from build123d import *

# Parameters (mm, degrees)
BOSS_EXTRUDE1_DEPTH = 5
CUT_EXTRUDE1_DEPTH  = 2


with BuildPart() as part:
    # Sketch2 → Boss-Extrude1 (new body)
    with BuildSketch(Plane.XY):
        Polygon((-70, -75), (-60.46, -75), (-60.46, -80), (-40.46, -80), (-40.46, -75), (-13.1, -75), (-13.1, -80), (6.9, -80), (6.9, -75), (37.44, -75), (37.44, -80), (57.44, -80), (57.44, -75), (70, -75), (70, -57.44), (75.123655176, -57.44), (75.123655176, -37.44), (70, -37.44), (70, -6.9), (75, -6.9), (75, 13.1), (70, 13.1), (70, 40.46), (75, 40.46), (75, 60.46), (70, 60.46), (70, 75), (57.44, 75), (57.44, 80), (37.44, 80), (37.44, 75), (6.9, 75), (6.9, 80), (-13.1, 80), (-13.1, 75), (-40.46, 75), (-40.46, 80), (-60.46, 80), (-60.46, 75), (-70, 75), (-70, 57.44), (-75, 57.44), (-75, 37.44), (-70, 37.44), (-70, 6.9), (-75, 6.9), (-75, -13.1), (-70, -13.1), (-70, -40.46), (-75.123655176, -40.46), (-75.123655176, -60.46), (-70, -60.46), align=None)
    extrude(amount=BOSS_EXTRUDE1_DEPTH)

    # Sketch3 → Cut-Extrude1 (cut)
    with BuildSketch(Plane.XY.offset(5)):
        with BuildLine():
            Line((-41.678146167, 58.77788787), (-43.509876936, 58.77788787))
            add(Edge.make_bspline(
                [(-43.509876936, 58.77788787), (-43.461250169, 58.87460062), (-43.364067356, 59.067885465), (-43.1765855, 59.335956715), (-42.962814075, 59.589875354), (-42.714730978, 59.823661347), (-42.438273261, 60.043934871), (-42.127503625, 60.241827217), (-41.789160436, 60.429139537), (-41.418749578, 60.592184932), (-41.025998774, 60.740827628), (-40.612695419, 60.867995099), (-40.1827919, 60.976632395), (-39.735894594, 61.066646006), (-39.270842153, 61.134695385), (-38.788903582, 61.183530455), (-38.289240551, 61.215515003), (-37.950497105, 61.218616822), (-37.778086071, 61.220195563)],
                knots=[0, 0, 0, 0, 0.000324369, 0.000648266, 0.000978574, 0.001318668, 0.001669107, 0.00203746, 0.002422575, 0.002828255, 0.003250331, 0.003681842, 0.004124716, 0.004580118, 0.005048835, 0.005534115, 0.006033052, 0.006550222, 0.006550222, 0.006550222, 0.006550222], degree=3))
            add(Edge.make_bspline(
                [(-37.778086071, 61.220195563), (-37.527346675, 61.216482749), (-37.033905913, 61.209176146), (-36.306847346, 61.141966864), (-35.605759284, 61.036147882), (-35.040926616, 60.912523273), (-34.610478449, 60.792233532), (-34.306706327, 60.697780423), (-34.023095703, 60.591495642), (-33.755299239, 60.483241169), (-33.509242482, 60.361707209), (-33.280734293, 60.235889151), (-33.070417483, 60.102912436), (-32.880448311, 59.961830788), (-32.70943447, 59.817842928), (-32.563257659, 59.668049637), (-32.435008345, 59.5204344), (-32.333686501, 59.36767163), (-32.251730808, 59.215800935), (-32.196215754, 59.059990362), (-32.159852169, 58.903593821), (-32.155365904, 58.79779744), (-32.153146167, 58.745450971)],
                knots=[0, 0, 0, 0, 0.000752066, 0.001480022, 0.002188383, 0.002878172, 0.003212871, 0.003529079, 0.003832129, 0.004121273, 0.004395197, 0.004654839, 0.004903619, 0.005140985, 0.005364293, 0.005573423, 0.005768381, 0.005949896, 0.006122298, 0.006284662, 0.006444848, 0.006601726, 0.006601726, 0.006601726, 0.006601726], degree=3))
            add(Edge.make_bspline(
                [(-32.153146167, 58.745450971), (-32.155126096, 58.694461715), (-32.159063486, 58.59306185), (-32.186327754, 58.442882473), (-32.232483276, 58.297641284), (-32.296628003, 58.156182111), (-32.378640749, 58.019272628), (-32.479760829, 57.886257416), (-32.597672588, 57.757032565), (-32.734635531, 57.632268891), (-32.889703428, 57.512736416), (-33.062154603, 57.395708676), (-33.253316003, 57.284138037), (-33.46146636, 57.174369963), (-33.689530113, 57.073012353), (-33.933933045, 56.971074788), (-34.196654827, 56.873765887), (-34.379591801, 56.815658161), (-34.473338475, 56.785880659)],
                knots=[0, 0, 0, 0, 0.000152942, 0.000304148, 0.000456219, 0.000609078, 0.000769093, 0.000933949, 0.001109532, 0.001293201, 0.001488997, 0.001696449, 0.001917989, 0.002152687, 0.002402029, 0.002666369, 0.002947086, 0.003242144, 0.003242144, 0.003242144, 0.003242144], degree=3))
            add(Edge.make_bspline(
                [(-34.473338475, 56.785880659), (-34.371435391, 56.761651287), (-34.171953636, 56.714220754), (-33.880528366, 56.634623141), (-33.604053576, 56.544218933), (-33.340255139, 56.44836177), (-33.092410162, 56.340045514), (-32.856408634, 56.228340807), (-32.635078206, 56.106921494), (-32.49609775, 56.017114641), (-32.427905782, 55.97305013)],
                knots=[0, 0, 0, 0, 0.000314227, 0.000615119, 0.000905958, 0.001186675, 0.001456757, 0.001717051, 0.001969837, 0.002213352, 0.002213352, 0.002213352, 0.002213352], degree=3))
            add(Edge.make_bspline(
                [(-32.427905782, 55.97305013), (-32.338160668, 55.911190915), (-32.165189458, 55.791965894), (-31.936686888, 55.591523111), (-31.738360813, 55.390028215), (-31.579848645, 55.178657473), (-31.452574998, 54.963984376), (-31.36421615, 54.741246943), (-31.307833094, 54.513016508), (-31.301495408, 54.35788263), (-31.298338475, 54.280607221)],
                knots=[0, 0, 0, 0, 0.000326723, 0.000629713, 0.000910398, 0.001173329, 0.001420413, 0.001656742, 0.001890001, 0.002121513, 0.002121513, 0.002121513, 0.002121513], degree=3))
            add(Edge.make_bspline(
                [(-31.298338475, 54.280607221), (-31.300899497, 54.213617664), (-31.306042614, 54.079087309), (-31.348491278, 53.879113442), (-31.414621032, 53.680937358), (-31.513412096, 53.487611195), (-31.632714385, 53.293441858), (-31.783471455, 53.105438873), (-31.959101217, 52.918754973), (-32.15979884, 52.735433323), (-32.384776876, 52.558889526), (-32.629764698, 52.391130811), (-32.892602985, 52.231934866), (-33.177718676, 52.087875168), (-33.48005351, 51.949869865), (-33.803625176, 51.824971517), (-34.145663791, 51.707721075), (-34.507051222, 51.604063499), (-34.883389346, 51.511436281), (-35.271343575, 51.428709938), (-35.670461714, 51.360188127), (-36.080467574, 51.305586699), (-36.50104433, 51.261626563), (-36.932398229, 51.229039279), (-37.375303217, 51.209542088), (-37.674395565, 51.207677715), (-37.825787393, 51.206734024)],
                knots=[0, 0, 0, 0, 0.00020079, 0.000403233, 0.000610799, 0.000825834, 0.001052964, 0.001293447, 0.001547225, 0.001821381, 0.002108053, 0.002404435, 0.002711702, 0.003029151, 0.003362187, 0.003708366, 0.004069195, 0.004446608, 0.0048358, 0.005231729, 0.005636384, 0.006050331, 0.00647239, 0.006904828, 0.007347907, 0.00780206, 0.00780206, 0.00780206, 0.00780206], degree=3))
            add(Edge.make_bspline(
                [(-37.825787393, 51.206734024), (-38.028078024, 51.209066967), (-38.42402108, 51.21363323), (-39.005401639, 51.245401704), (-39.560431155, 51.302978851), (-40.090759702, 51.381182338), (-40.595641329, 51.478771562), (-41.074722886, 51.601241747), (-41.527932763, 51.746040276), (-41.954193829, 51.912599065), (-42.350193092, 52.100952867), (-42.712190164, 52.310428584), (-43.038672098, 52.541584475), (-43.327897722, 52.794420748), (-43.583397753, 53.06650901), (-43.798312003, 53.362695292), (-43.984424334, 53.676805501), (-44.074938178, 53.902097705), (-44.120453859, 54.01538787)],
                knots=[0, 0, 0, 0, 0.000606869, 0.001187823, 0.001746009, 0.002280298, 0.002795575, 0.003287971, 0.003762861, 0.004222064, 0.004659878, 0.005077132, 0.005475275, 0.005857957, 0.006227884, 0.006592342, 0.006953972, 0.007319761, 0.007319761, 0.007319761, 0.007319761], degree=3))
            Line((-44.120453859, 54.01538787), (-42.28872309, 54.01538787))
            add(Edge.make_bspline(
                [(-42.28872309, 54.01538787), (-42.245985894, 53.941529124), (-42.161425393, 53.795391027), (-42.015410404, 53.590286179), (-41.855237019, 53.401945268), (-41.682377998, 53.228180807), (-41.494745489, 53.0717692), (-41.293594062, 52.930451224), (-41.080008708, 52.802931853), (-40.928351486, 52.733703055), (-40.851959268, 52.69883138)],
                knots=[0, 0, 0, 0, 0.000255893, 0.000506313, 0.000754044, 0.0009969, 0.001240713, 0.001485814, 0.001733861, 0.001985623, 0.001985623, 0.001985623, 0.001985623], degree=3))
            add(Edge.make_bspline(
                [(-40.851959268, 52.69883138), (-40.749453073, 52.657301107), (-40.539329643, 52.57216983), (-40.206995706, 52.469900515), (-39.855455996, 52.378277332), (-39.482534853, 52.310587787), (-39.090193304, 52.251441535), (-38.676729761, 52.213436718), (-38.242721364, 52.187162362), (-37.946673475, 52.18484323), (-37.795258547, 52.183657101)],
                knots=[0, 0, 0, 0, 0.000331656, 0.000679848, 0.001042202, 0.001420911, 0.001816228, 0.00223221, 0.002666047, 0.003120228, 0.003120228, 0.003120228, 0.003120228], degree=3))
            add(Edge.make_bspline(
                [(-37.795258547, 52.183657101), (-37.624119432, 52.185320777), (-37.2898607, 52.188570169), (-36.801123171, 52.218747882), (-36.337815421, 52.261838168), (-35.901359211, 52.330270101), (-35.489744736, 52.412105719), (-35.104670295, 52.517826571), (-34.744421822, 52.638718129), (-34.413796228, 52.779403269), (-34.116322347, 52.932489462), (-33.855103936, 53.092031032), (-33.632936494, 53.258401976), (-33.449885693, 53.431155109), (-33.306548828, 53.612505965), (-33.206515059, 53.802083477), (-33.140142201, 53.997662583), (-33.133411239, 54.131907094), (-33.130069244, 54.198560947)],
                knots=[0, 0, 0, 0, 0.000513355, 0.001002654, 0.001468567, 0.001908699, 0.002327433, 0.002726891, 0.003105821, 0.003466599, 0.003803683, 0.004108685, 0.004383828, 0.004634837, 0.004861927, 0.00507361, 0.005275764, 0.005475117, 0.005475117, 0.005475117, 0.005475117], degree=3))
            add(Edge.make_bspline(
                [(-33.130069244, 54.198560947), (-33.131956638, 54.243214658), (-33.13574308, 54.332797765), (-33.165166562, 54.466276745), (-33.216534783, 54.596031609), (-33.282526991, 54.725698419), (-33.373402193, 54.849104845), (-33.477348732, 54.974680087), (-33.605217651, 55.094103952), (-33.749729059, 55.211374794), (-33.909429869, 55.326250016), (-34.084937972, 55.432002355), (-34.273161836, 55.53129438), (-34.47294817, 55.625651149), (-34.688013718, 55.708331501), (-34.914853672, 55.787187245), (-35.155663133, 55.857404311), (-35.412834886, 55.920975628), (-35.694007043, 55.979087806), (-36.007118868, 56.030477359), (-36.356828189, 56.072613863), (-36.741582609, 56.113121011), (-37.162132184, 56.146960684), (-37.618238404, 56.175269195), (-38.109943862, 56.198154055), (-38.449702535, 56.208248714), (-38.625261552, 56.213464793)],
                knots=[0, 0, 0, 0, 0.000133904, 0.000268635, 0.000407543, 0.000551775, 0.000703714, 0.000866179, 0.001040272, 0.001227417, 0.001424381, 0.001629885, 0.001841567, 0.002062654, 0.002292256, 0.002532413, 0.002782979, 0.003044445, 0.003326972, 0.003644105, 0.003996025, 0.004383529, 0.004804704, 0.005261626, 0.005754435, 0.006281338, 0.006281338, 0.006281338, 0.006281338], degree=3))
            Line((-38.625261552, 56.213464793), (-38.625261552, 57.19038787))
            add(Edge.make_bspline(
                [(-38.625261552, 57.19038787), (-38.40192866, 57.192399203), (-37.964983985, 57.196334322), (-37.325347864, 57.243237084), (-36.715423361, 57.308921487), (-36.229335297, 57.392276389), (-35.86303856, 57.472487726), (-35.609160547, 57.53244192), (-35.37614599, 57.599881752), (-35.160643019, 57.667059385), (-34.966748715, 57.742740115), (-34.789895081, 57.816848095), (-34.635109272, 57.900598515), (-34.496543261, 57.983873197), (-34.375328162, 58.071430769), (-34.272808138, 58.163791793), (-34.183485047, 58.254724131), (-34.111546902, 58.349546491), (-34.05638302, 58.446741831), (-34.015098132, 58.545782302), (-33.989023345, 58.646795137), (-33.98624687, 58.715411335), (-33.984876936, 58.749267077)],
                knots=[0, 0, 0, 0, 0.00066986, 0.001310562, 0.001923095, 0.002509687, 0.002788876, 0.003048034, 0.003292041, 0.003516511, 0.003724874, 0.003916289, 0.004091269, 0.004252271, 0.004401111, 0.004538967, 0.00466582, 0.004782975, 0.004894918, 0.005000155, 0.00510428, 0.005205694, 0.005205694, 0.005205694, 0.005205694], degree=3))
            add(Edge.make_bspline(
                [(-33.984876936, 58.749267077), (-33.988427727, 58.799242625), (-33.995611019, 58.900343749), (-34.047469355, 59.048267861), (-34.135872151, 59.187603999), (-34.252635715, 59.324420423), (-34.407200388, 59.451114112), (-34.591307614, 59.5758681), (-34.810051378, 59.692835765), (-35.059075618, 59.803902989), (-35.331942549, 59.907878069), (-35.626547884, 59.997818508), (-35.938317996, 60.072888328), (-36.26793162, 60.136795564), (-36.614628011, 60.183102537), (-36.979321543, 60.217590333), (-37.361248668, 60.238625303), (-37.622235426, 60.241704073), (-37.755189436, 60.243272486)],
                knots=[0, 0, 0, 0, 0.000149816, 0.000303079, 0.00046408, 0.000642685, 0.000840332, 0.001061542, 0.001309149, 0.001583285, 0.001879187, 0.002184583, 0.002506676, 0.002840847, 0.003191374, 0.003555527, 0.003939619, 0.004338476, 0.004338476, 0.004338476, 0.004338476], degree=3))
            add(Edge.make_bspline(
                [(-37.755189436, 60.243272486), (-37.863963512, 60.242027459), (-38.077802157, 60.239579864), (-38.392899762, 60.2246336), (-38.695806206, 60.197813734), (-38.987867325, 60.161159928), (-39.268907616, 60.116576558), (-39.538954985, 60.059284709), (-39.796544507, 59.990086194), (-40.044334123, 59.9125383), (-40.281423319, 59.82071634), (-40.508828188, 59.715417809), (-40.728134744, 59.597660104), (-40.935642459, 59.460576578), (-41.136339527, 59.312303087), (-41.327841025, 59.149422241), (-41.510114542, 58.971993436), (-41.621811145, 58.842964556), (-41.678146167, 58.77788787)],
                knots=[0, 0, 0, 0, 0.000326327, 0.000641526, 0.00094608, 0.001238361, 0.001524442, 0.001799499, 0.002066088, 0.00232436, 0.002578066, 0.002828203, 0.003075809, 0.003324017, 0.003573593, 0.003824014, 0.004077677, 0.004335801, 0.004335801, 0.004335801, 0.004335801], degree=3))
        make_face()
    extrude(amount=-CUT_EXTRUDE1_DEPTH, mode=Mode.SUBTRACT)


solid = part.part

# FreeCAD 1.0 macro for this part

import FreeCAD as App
import Part
import Sketcher

V = App.Vector

doc = App.newDocument("Part")
body = doc.addObject("PartDesign::Body", "Body")

sketch1 = body.newObject("Sketcher::SketchObject", "Sketch")
sketch1.AttachmentSupport = (doc.getObject("XY_Plane"), [""])
sketch1.MapMode = "FlatFace"
sketch1.addGeometry([
    Part.LineSegment(V(-70, -75, 0), V(-60, -75, 0)),
    Part.LineSegment(V(-60, -75, 0), V(-60, -80, 0)),
    Part.LineSegment(V(-60, -80, 0), V(-40, -80, 0)),
    Part.LineSegment(V(-40, -80, 0), V(-40, -75, 0)),
    Part.LineSegment(V(-40, -75, 0), V(-13, -75, 0)),
    Part.LineSegment(V(-13, -75, 0), V(-13, -80, 0)),
    Part.LineSegment(V(-13, -80, 0), V(7, -80, 0)),
    Part.LineSegment(V(7, -80, 0), V(7, -75, 0)),
    Part.LineSegment(V(7, -75, 0), V(37, -75, 0)),
    Part.LineSegment(V(37, -75, 0), V(37, -80, 0)),
    Part.LineSegment(V(37, -80, 0), V(57, -80, 0)),
    Part.LineSegment(V(57, -80, 0), V(57, -75, 0)),
    Part.LineSegment(V(57, -75, 0), V(70, -75, 0)),
    Part.LineSegment(V(70, -75, 0), V(70, -57, 0)),
    Part.LineSegment(V(70, -57, 0), V(75, -57, 0)),
    Part.LineSegment(V(75, -57, 0), V(75, -37, 0)),
    Part.LineSegment(V(75, -37, 0), V(70, -37, 0)),
    Part.LineSegment(V(70, -37, 0), V(70, -7, 0)),
    Part.LineSegment(V(70, -7, 0), V(75, -7, 0)),
    Part.LineSegment(V(75, -7, 0), V(75, 13, 0)),
    Part.LineSegment(V(75, 13, 0), V(70, 13, 0)),
    Part.LineSegment(V(70, 13, 0), V(70, 40, 0)),
    Part.LineSegment(V(70, 40, 0), V(75, 40, 0)),
    Part.LineSegment(V(75, 40, 0), V(75, 60, 0)),
    Part.LineSegment(V(75, 60, 0), V(70, 60, 0)),
    Part.LineSegment(V(70, 60, 0), V(70, 75, 0)),
    Part.LineSegment(V(70, 75, 0), V(57, 75, 0)),
    Part.LineSegment(V(57, 75, 0), V(57, 80, 0)),
    Part.LineSegment(V(57, 80, 0), V(37, 80, 0)),
    Part.LineSegment(V(37, 80, 0), V(37, 75, 0)),
    Part.LineSegment(V(37, 75, 0), V(7, 75, 0)),
    Part.LineSegment(V(7, 75, 0), V(7, 80, 0)),
    Part.LineSegment(V(7, 80, 0), V(-13, 80, 0)),
    Part.LineSegment(V(-13, 80, 0), V(-13, 75, 0)),
    Part.LineSegment(V(-13, 75, 0), V(-40, 75, 0)),
    Part.LineSegment(V(-40, 75, 0), V(-40, 80, 0)),
    Part.LineSegment(V(-40, 80, 0), V(-60, 80, 0)),
    Part.LineSegment(V(-60, 80, 0), V(-60, 75, 0)),
    Part.LineSegment(V(-60, 75, 0), V(-70, 75, 0)),
    Part.LineSegment(V(-70, 75, 0), V(-70, 57, 0)),
    Part.LineSegment(V(-70, 57, 0), V(-75, 57, 0)),
    Part.LineSegment(V(-75, 57, 0), V(-75, 37, 0)),
    Part.LineSegment(V(-75, 37, 0), V(-70, 37, 0)),
    Part.LineSegment(V(-70, 37, 0), V(-70, 7, 0)),
    Part.LineSegment(V(-70, 7, 0), V(-75, 7, 0)),
    Part.LineSegment(V(-75, 7, 0), V(-75, -13, 0)),
    Part.LineSegment(V(-75, -13, 0), V(-70, -13, 0)),
    Part.LineSegment(V(-70, -13, 0), V(-70, -40, 0)),
    Part.LineSegment(V(-70, -40, 0), V(-75, -40, 0)),
    Part.LineSegment(V(-75, -40, 0), V(-75, -60, 0)),
    Part.LineSegment(V(-75, -60, 0), V(-70, -60, 0)),
    Part.LineSegment(V(-70, -60, 0), V(-70, -75, 0)),
], False)
sketch1.addConstraint([
    Sketcher.Constraint("Coincident", 0, 2, 1, 1),
    Sketcher.Constraint("Coincident", 1, 2, 2, 1),
    Sketcher.Constraint("Coincident", 2, 2, 3, 1),
    Sketcher.Constraint("Coincident", 3, 2, 4, 1),
    Sketcher.Constraint("Coincident", 4, 2, 5, 1),
    Sketcher.Constraint("Coincident", 5, 2, 6, 1),
    Sketcher.Constraint("Coincident", 6, 2, 7, 1),
    Sketcher.Constraint("Coincident", 7, 2, 8, 1),
    Sketcher.Constraint("Coincident", 8, 2, 9, 1),
    Sketcher.Constraint("Coincident", 9, 2, 10, 1),
    Sketcher.Constraint("Coincident", 10, 2, 11, 1),
    Sketcher.Constraint("Coincident", 11, 2, 12, 1),
    Sketcher.Constraint("Coincident", 12, 2, 13, 1),
    Sketcher.Constraint("Coincident", 13, 2, 14, 1),
    Sketcher.Constraint("Coincident", 14, 2, 15, 1),
    Sketcher.Constraint("Coincident", 15, 2, 16, 1),
    Sketcher.Constraint("Coincident", 16, 2, 17, 1),
    Sketcher.Constraint("Coincident", 17, 2, 18, 1),
    Sketcher.Constraint("Coincident", 18, 2, 19, 1),
    Sketcher.Constraint("Coincident", 19, 2, 20, 1),
    Sketcher.Constraint("Coincident", 20, 2, 21, 1),
    Sketcher.Constraint("Coincident", 21, 2, 22, 1),
    Sketcher.Constraint("Coincident", 22, 2, 23, 1),
    Sketcher.Constraint("Coincident", 23, 2, 24, 1),
    Sketcher.Constraint("Coincident", 24, 2, 25, 1),
    Sketcher.Constraint("Coincident", 25, 2, 26, 1),
    Sketcher.Constraint("Coincident", 26, 2, 27, 1),
    Sketcher.Constraint("Coincident", 27, 2, 28, 1),
    Sketcher.Constraint("Coincident", 28, 2, 29, 1),
    Sketcher.Constraint("Coincident", 29, 2, 30, 1),
    Sketcher.Constraint("Coincident", 30, 2, 31, 1),
    Sketcher.Constraint("Coincident", 31, 2, 32, 1),
    Sketcher.Constraint("Coincident", 32, 2, 33, 1),
    Sketcher.Constraint("Coincident", 33, 2, 34, 1),
    Sketcher.Constraint("Coincident", 34, 2, 35, 1),
    Sketcher.Constraint("Coincident", 35, 2, 36, 1),
    Sketcher.Constraint("Coincident", 36, 2, 37, 1),
    Sketcher.Constraint("Coincident", 37, 2, 38, 1),
    Sketcher.Constraint("Coincident", 38, 2, 39, 1),
    Sketcher.Constraint("Coincident", 39, 2, 40, 1),
    Sketcher.Constraint("Coincident", 40, 2, 41, 1),
    Sketcher.Constraint("Coincident", 41, 2, 42, 1),
    Sketcher.Constraint("Coincident", 42, 2, 43, 1),
    Sketcher.Constraint("Coincident", 43, 2, 44, 1),
    Sketcher.Constraint("Coincident", 44, 2, 45, 1),
    Sketcher.Constraint("Coincident", 45, 2, 46, 1),
    Sketcher.Constraint("Coincident", 46, 2, 47, 1),
    Sketcher.Constraint("Coincident", 47, 2, 48, 1),
    Sketcher.Constraint("Coincident", 48, 2, 49, 1),
    Sketcher.Constraint("Coincident", 49, 2, 50, 1),
    Sketcher.Constraint("Coincident", 50, 2, 51, 1),
    Sketcher.Constraint("Coincident", 51, 2, 0, 1),
    Sketcher.Constraint("Horizontal", 0),
    Sketcher.Constraint("Vertical", 1),
    Sketcher.Constraint("Horizontal", 2),
    Sketcher.Constraint("Vertical", 3),
    Sketcher.Constraint("Horizontal", 4),
    Sketcher.Constraint("Vertical", 5),
    Sketcher.Constraint("Horizontal", 6),
    Sketcher.Constraint("Vertical", 7),
    Sketcher.Constraint("Horizontal", 8),
    Sketcher.Constraint("Vertical", 9),
    Sketcher.Constraint("Horizontal", 10),
    Sketcher.Constraint("Vertical", 11),
    Sketcher.Constraint("Horizontal", 12),
    Sketcher.Constraint("Vertical", 13),
    Sketcher.Constraint("Horizontal", 14),
    Sketcher.Constraint("Vertical", 15),
    Sketcher.Constraint("Horizontal", 16),
    Sketcher.Constraint("Vertical", 17),
    Sketcher.Constraint("Horizontal", 18),
    Sketcher.Constraint("Vertical", 19),
    Sketcher.Constraint("Horizontal", 20),
    Sketcher.Constraint("Vertical", 21),
    Sketcher.Constraint("Horizontal", 22),
    Sketcher.Constraint("Vertical", 23),
    Sketcher.Constraint("Horizontal", 24),
    Sketcher.Constraint("Vertical", 25),
    Sketcher.Constraint("Horizontal", 26),
    Sketcher.Constraint("Vertical", 27),
    Sketcher.Constraint("Horizontal", 28),
    Sketcher.Constraint("Vertical", 29),
    Sketcher.Constraint("Horizontal", 30),
    Sketcher.Constraint("Vertical", 31),
    Sketcher.Constraint("Horizontal", 32),
    Sketcher.Constraint("Vertical", 33),
    Sketcher.Constraint("Horizontal", 34),
    Sketcher.Constraint("Vertical", 35),
    Sketcher.Constraint("Horizontal", 36),
    Sketcher.Constraint("Vertical", 37),
    Sketcher.Constraint("Horizontal", 38),
    Sketcher.Constraint("Vertical", 39),
    Sketcher.Constraint("Horizontal", 40),
    Sketcher.Constraint("Vertical", 41),
    Sketcher.Constraint("Horizontal", 42),
    Sketcher.Constraint("Vertical", 43),
    Sketcher.Constraint("Horizontal", 44),
    Sketcher.Constraint("Vertical", 45),
    Sketcher.Constraint("Horizontal", 46),
    Sketcher.Constraint("Vertical", 47),
    Sketcher.Constraint("Horizontal", 48),
    Sketcher.Constraint("Vertical", 49),
    Sketcher.Constraint("Horizontal", 50),
    Sketcher.Constraint("Vertical", 51),
    Sketcher.Constraint("Symmetric", 12, 2, 38, 2, -1, 1),
    Sketcher.Constraint("Symmetric", 16, 2, 42, 2, -1, 1),
    Sketcher.Constraint("Symmetric", 18, 2, 44, 2, -1, 1),
    Sketcher.Constraint("Symmetric", 20, 2, 46, 2, -1, 1),
    Sketcher.Constraint("Symmetric", 24, 2, 50, 2, -1, 1),
    Sketcher.Constraint("Symmetric", 25, 2, 38, 2, -2),
    Sketcher.Constraint("Symmetric", 10, 2, 27, 2, -1),
    Sketcher.Constraint("Symmetric", 8, 2, 29, 2, -1),
    Sketcher.Constraint("Symmetric", 6, 2, 31, 2, -1),
    Sketcher.Constraint("Symmetric", 4, 2, 33, 2, -1),
    Sketcher.Constraint("Symmetric", 2, 2, 35, 2, -1),
    Sketcher.Constraint("Symmetric", 0, 2, 37, 2, -1),
    Sketcher.Constraint("Horizontal", 0, 2, 3, 2),
    Sketcher.Constraint("Horizontal", 2, 2, 5, 2),
    Sketcher.Constraint("Horizontal", 4, 2, 7, 2),
    Sketcher.Constraint("Horizontal", 6, 2, 9, 2),
    Sketcher.Constraint("Vertical", 13, 2, 16, 2),
    Sketcher.Constraint("Vertical", 17, 2, 20, 2),
    Sketcher.Constraint("Vertical", 19, 2, 22, 2),
    Sketcher.Constraint("Vertical", 41, 2, 44, 2),
    Sketcher.Constraint("Equal", 2, 6),
    Sketcher.Constraint("Equal", 6, 10),
    Sketcher.Constraint("Equal", 16, 48),
    Sketcher.Constraint("Equal", 46, 1),
    Sketcher.Constraint("Equal", 36, 15),
    Sketcher.Constraint("Equal", 30, 17),
    Sketcher.Constraint("Equal", 15, 19),
    Sketcher.Constraint("Equal", 34, 21),
    Sketcher.Constraint("Equal", 19, 23),
    Sketcher.Constraint("Equal", 13, 39),
    Sketcher.Constraint("Equal", 21, 47),
    Sketcher.Constraint("DistanceX", 2, 1, 2, 2, 20.0),
    Sketcher.Constraint("DistanceX", 18, 1, 18, 2, 5.0),
    Sketcher.Constraint("DistanceY", 0, 2, -1, 1, 75.0),
    Sketcher.Constraint("DistanceX", -1, 1, 12, 2, 70.0),
    Sketcher.Constraint("DistanceX", 0, 1, 0, 2, 9.54),
    Sketcher.Constraint("DistanceX", 4, 1, 4, 2, 27.36),
    Sketcher.Constraint("DistanceX", 8, 1, 8, 2, 30.54),
    Sketcher.Constraint("DistanceY", 13, 1, 13, 2, 17.56),
    Sketcher.Constraint("DistanceX", 14, 1, 14, 2, 5.123655),
])
pad1 = body.newObject("PartDesign::Pad", "Pad")
pad1.Profile = sketch1
pad1.Length = 5

sketch2 = body.newObject("Sketcher::SketchObject", "Sketch001")
sketch2.AttachmentSupport = (doc.getObject("XY_Plane"), [""])
sketch2.MapMode = "FlatFace"
sketch2.AttachmentOffset = App.Placement(V(0, 0, 5), App.Rotation())
sketch2.addGeometry([
    Part.LineSegment(V(-43.509877, 58.777888, 0), V(-41.678146, 58.777888, 0)),
    Part.BSplineCurve([V(-37.755189, 60.243272, 0), V(-37.863964, 60.242027, 0), V(-38.077802, 60.23958, 0), V(-38.3929, 60.224634, 0), V(-38.695806, 60.197814, 0), V(-38.987867, 60.16116, 0), V(-39.268908, 60.116577, 0), V(-39.538955, 60.059285, 0), V(-39.796545, 59.990086, 0), V(-40.044334, 59.912538, 0), V(-40.281423, 59.820716, 0), V(-40.508828, 59.715418, 0), V(-40.728135, 59.59766, 0), V(-40.935642, 59.460577, 0), V(-41.13634, 59.312303, 0), V(-41.327841, 59.149422, 0), V(-41.510115, 58.971993, 0), V(-41.621811, 58.842965, 0), V(-41.678146, 58.777888, 0)], [4, 1, 1, 1, 1, 1, 1, 1, 1, 1, 1, 1, 1, 1, 1, 1, 4], [0, 0.000326327, 0.000641526, 0.00094608, 0.001238361, 0.001524442, 0.001799499, 0.002066088, 0.00232436, 0.002578066, 0.002828203, 0.003075809, 0.003324017, 0.003573593, 0.003824014, 0.004077677, 0.004335801], False, 3, [1, 1, 1, 1, 1, 1, 1, 1, 1, 1, 1, 1, 1, 1, 1, 1, 1, 1, 1], False),
    Part.BSplineCurve([V(-33.984877, 58.749267, 0), V(-33.988428, 58.799243, 0), V(-33.995611, 58.900344, 0), V(-34.047469, 59.048268, 0), V(-34.135872, 59.187604, 0), V(-34.252636, 59.32442, 0), V(-34.4072, 59.451114, 0), V(-34.591308, 59.575868, 0), V(-34.810051, 59.692836, 0), V(-35.059076, 59.803903, 0), V(-35.331943, 59.907878, 0), V(-35.626548, 59.997819, 0), V(-35.938318, 60.072888, 0), V(-36.267932, 60.136796, 0), V(-36.614628, 60.183103, 0), V(-36.979322, 60.21759, 0), V(-37.361249, 60.238625, 0), V(-37.622235, 60.241704, 0), V(-37.755189, 60.243272, 0)], [4, 1, 1, 1, 1, 1, 1, 1, 1, 1, 1, 1, 1, 1, 1, 1, 4], [0, 0.000149816, 0.000303079, 0.00046408, 0.000642685, 0.000840332, 0.001061542, 0.001309149, 0.001583285, 0.001879187, 0.002184583, 0.002506676, 0.002840847, 0.003191374, 0.003555527, 0.003939619, 0.004338476], False, 3, [1, 1, 1, 1, 1, 1, 1, 1, 1, 1, 1, 1, 1, 1, 1, 1, 1, 1, 1], False),
    Part.BSplineCurve([V(-38.625262, 57.190388, 0), V(-38.401929, 57.192399, 0), V(-37.964984, 57.196334, 0), V(-37.325348, 57.243237, 0), V(-36.715423, 57.308921, 0), V(-36.229335, 57.392276, 0), V(-35.863039, 57.472488, 0), V(-35.609161, 57.532442, 0), V(-35.376146, 57.599882, 0), V(-35.160643, 57.667059, 0), V(-34.966749, 57.74274, 0), V(-34.789895, 57.816848, 0), V(-34.635109, 57.900599, 0), V(-34.496543, 57.983873, 0), V(-34.375328, 58.071431, 0), V(-34.272808, 58.163792, 0), V(-34.183485, 58.254724, 0), V(-34.111547, 58.349546, 0), V(-34.056383, 58.446742, 0), V(-34.015098, 58.545782, 0), V(-33.989023, 58.646795, 0), V(-33.986247, 58.715411, 0), V(-33.984877, 58.749267, 0)], [4, 1, 1, 1, 1, 1, 1, 1, 1, 1, 1, 1, 1, 1, 1, 1, 1, 1, 1, 1, 4], [0, 0.00066986, 0.001310562, 0.001923095, 0.002509687, 0.002788876, 0.003048034, 0.003292041, 0.003516511, 0.003724874, 0.003916289, 0.004091269, 0.004252271, 0.004401111, 0.004538967, 0.00466582, 0.004782975, 0.004894918, 0.005000155, 0.00510428, 0.005205694], False, 3, [1, 1, 1, 1, 1, 1, 1, 1, 1, 1, 1, 1, 1, 1, 1, 1, 1, 1, 1, 1, 1, 1, 1], False),
    Part.LineSegment(V(-38.625262, 57.190388, 0), V(-38.625262, 56.213465, 0)),
    Part.BSplineCurve([V(-33.130069, 54.198561, 0), V(-33.131957, 54.243215, 0), V(-33.135743, 54.332798, 0), V(-33.165167, 54.466277, 0), V(-33.216535, 54.596032, 0), V(-33.282527, 54.725698, 0), V(-33.373402, 54.849105, 0), V(-33.477349, 54.97468, 0), V(-33.605218, 55.094104, 0), V(-33.749729, 55.211375, 0), V(-33.90943, 55.32625, 0), V(-34.084938, 55.432002, 0), V(-34.273162, 55.531294, 0), V(-34.472948, 55.625651, 0), V(-34.688014, 55.708332, 0), V(-34.914854, 55.787187, 0), V(-35.155663, 55.857404, 0), V(-35.412835, 55.920976, 0), V(-35.694007, 55.979088, 0), V(-36.007119, 56.030477, 0), V(-36.356828, 56.072614, 0), V(-36.741583, 56.113121, 0), V(-37.162132, 56.146961, 0), V(-37.618238, 56.175269, 0), V(-38.109944, 56.198154, 0), V(-38.449703, 56.208249, 0), V(-38.625262, 56.213465, 0)], [4, 1, 1, 1, 1, 1, 1, 1, 1, 1, 1, 1, 1, 1, 1, 1, 1, 1, 1, 1, 1, 1, 1, 1, 4], [0, 0.000133904, 0.000268635, 0.000407543, 0.000551775, 0.000703714, 0.000866179, 0.001040272, 0.001227417, 0.001424381, 0.001629885, 0.001841567, 0.002062654, 0.002292256, 0.002532413, 0.002782979, 0.003044445, 0.003326972, 0.003644105, 0.003996025, 0.004383529, 0.004804704, 0.005261626, 0.005754435, 0.006281338], False, 3, [1, 1, 1, 1, 1, 1, 1, 1, 1, 1, 1, 1, 1, 1, 1, 1, 1, 1, 1, 1, 1, 1, 1, 1, 1, 1, 1], False),
    Part.BSplineCurve([V(-37.795259, 52.183657, 0), V(-37.624119, 52.185321, 0), V(-37.289861, 52.18857, 0), V(-36.801123, 52.218748, 0), V(-36.337815, 52.261838, 0), V(-35.901359, 52.33027, 0), V(-35.489745, 52.412106, 0), V(-35.10467, 52.517827, 0), V(-34.744422, 52.638718, 0), V(-34.413796, 52.779403, 0), V(-34.116322, 52.932489, 0), V(-33.855104, 53.092031, 0), V(-33.632936, 53.258402, 0), V(-33.449886, 53.431155, 0), V(-33.306549, 53.612506, 0), V(-33.206515, 53.802083, 0), V(-33.140142, 53.997663, 0), V(-33.133411, 54.131907, 0), V(-33.130069, 54.198561, 0)], [4, 1, 1, 1, 1, 1, 1, 1, 1, 1, 1, 1, 1, 1, 1, 1, 4], [0, 0.000513355, 0.001002654, 0.001468567, 0.001908699, 0.002327433, 0.002726891, 0.003105821, 0.003466599, 0.003803683, 0.004108685, 0.004383828, 0.004634837, 0.004861927, 0.00507361, 0.005275764, 0.005475117], False, 3, [1, 1, 1, 1, 1, 1, 1, 1, 1, 1, 1, 1, 1, 1, 1, 1, 1, 1, 1], False),
    Part.BSplineCurve([V(-40.851959, 52.698831, 0), V(-40.749453, 52.657301, 0), V(-40.53933, 52.57217, 0), V(-40.206996, 52.469901, 0), V(-39.855456, 52.378277, 0), V(-39.482535, 52.310588, 0), V(-39.090193, 52.251442, 0), V(-38.67673, 52.213437, 0), V(-38.242721, 52.187162, 0), V(-37.946673, 52.184843, 0), V(-37.795259, 52.183657, 0)], [4, 1, 1, 1, 1, 1, 1, 1, 4], [0, 0.000331656, 0.000679848, 0.001042202, 0.001420911, 0.001816228, 0.00223221, 0.002666047, 0.003120228], False, 3, [1, 1, 1, 1, 1, 1, 1, 1, 1, 1, 1], False),
    Part.BSplineCurve([V(-42.288723, 54.015388, 0), V(-42.245986, 53.941529, 0), V(-42.161425, 53.795391, 0), V(-42.01541, 53.590286, 0), V(-41.855237, 53.401945, 0), V(-41.682378, 53.228181, 0), V(-41.494745, 53.071769, 0), V(-41.293594, 52.930451, 0), V(-41.080009, 52.802932, 0), V(-40.928351, 52.733703, 0), V(-40.851959, 52.698831, 0)], [4, 1, 1, 1, 1, 1, 1, 1, 4], [0, 0.000255893, 0.000506313, 0.000754044, 0.0009969, 0.001240713, 0.001485814, 0.001733861, 0.001985623], False, 3, [1, 1, 1, 1, 1, 1, 1, 1, 1, 1, 1], False),
    Part.LineSegment(V(-42.288723, 54.015388, 0), V(-44.120454, 54.015388, 0)),
    Part.BSplineCurve([V(-37.825787, 51.206734, 0), V(-38.028078, 51.209067, 0), V(-38.424021, 51.213633, 0), V(-39.005402, 51.245402, 0), V(-39.560431, 51.302979, 0), V(-40.09076, 51.381182, 0), V(-40.595641, 51.478772, 0), V(-41.074723, 51.601242, 0), V(-41.527933, 51.74604, 0), V(-41.954194, 51.912599, 0), V(-42.350193, 52.100953, 0), V(-42.71219, 52.310429, 0), V(-43.038672, 52.541584, 0), V(-43.327898, 52.794421, 0), V(-43.583398, 53.066509, 0), V(-43.798312, 53.362695, 0), V(-43.984424, 53.676806, 0), V(-44.074938, 53.902098, 0), V(-44.120454, 54.015388, 0)], [4, 1, 1, 1, 1, 1, 1, 1, 1, 1, 1, 1, 1, 1, 1, 1, 4], [0, 0.000606869, 0.001187823, 0.001746009, 0.002280298, 0.002795575, 0.003287971, 0.003762861, 0.004222064, 0.004659878, 0.005077132, 0.005475275, 0.005857957, 0.006227884, 0.006592342, 0.006953972, 0.007319761], False, 3, [1, 1, 1, 1, 1, 1, 1, 1, 1, 1, 1, 1, 1, 1, 1, 1, 1, 1, 1], False),
    Part.BSplineCurve([V(-31.298338, 54.280607, 0), V(-31.300899, 54.213618, 0), V(-31.306043, 54.079087, 0), V(-31.348491, 53.879113, 0), V(-31.414621, 53.680937, 0), V(-31.513412, 53.487611, 0), V(-31.632714, 53.293442, 0), V(-31.783471, 53.105439, 0), V(-31.959101, 52.918755, 0), V(-32.159799, 52.735433, 0), V(-32.384777, 52.55889, 0), V(-32.629765, 52.391131, 0), V(-32.892603, 52.231935, 0), V(-33.177719, 52.087875, 0), V(-33.480054, 51.94987, 0), V(-33.803625, 51.824972, 0), V(-34.145664, 51.707721, 0), V(-34.507051, 51.604063, 0), V(-34.883389, 51.511436, 0), V(-35.271344, 51.42871, 0), V(-35.670462, 51.360188, 0), V(-36.080468, 51.305587, 0), V(-36.501044, 51.261627, 0), V(-36.932398, 51.229039, 0), V(-37.375303, 51.209542, 0), V(-37.674396, 51.207678, 0), V(-37.825787, 51.206734, 0)], [4, 1, 1, 1, 1, 1, 1, 1, 1, 1, 1, 1, 1, 1, 1, 1, 1, 1, 1, 1, 1, 1, 1, 1, 4], [0, 0.00020079, 0.000403233, 0.000610799, 0.000825834, 0.001052964, 0.001293447, 0.001547225, 0.001821381, 0.002108053, 0.002404435, 0.002711702, 0.003029151, 0.003362187, 0.003708366, 0.004069195, 0.004446608, 0.0048358, 0.005231729, 0.005636384, 0.006050331, 0.00647239, 0.006904828, 0.007347907, 0.00780206], False, 3, [1, 1, 1, 1, 1, 1, 1, 1, 1, 1, 1, 1, 1, 1, 1, 1, 1, 1, 1, 1, 1, 1, 1, 1, 1, 1, 1], False),
    Part.BSplineCurve([V(-32.427906, 55.97305, 0), V(-32.338161, 55.911191, 0), V(-32.165189, 55.791966, 0), V(-31.936687, 55.591523, 0), V(-31.738361, 55.390028, 0), V(-31.579849, 55.178657, 0), V(-31.452575, 54.963984, 0), V(-31.364216, 54.741247, 0), V(-31.307833, 54.513017, 0), V(-31.301495, 54.357883, 0), V(-31.298338, 54.280607, 0)], [4, 1, 1, 1, 1, 1, 1, 1, 4], [0, 0.000326723, 0.000629713, 0.000910398, 0.001173329, 0.001420413, 0.001656742, 0.001890001, 0.002121513], False, 3, [1, 1, 1, 1, 1, 1, 1, 1, 1, 1, 1], False),
    Part.BSplineCurve([V(-34.473338, 56.785881, 0), V(-34.371435, 56.761651, 0), V(-34.171954, 56.714221, 0), V(-33.880528, 56.634623, 0), V(-33.604054, 56.544219, 0), V(-33.340255, 56.448362, 0), V(-33.09241, 56.340046, 0), V(-32.856409, 56.228341, 0), V(-32.635078, 56.106921, 0), V(-32.496098, 56.017115, 0), V(-32.427906, 55.97305, 0)], [4, 1, 1, 1, 1, 1, 1, 1, 4], [0, 0.000314227, 0.000615119, 0.000905958, 0.001186675, 0.001456757, 0.001717051, 0.001969837, 0.002213352], False, 3, [1, 1, 1, 1, 1, 1, 1, 1, 1, 1, 1], False),
    Part.BSplineCurve([V(-32.153146, 58.745451, 0), V(-32.155126, 58.694462, 0), V(-32.159063, 58.593062, 0), V(-32.186328, 58.442882, 0), V(-32.232483, 58.297641, 0), V(-32.296628, 58.156182, 0), V(-32.378641, 58.019273, 0), V(-32.479761, 57.886257, 0), V(-32.597673, 57.757033, 0), V(-32.734636, 57.632269, 0), V(-32.889703, 57.512736, 0), V(-33.062155, 57.395709, 0), V(-33.253316, 57.284138, 0), V(-33.461466, 57.17437, 0), V(-33.68953, 57.073012, 0), V(-33.933933, 56.971075, 0), V(-34.196655, 56.873766, 0), V(-34.379592, 56.815658, 0), V(-34.473338, 56.785881, 0)], [4, 1, 1, 1, 1, 1, 1, 1, 1, 1, 1, 1, 1, 1, 1, 1, 4], [0, 0.000152942, 0.000304148, 0.000456219, 0.000609078, 0.000769093, 0.000933949, 0.001109532, 0.001293201, 0.001488997, 0.001696449, 0.001917989, 0.002152687, 0.002402029, 0.002666369, 0.002947086, 0.003242144], False, 3, [1, 1, 1, 1, 1, 1, 1, 1, 1, 1, 1, 1, 1, 1, 1, 1, 1, 1, 1], False),
    Part.BSplineCurve([V(-37.778086, 61.220196, 0), V(-37.527347, 61.216483, 0), V(-37.033906, 61.209176, 0), V(-36.306847, 61.141967, 0), V(-35.605759, 61.036148, 0), V(-35.040927, 60.912523, 0), V(-34.610478, 60.792234, 0), V(-34.306706, 60.69778, 0), V(-34.023096, 60.591496, 0), V(-33.755299, 60.483241, 0), V(-33.509242, 60.361707, 0), V(-33.280734, 60.235889, 0), V(-33.070417, 60.102912, 0), V(-32.880448, 59.961831, 0), V(-32.709434, 59.817843, 0), V(-32.563258, 59.66805, 0), V(-32.435008, 59.520434, 0), V(-32.333687, 59.367672, 0), V(-32.251731, 59.215801, 0), V(-32.196216, 59.05999, 0), V(-32.159852, 58.903594, 0), V(-32.155366, 58.797797, 0), V(-32.153146, 58.745451, 0)], [4, 1, 1, 1, 1, 1, 1, 1, 1, 1, 1, 1, 1, 1, 1, 1, 1, 1, 1, 1, 4], [0, 0.000752066, 0.001480022, 0.002188383, 0.002878172, 0.003212871, 0.003529079, 0.003832129, 0.004121273, 0.004395197, 0.004654839, 0.004903619, 0.005140985, 0.005364293, 0.005573423, 0.005768381, 0.005949896, 0.006122298, 0.006284662, 0.006444848, 0.006601726], False, 3, [1, 1, 1, 1, 1, 1, 1, 1, 1, 1, 1, 1, 1, 1, 1, 1, 1, 1, 1, 1, 1, 1, 1], False),
    Part.BSplineCurve([V(-43.509877, 58.777888, 0), V(-43.46125, 58.874601, 0), V(-43.364067, 59.067885, 0), V(-43.176586, 59.335957, 0), V(-42.962814, 59.589875, 0), V(-42.714731, 59.823661, 0), V(-42.438273, 60.043935, 0), V(-42.127504, 60.241827, 0), V(-41.78916, 60.42914, 0), V(-41.41875, 60.592185, 0), V(-41.025999, 60.740828, 0), V(-40.612695, 60.867995, 0), V(-40.182792, 60.976632, 0), V(-39.735895, 61.066646, 0), V(-39.270842, 61.134695, 0), V(-38.788904, 61.18353, 0), V(-38.289241, 61.215515, 0), V(-37.950497, 61.218617, 0), V(-37.778086, 61.220196, 0)], [4, 1, 1, 1, 1, 1, 1, 1, 1, 1, 1, 1, 1, 1, 1, 1, 4], [0, 0.000324369, 0.000648266, 0.000978574, 0.001318668, 0.001669107, 0.00203746, 0.002422575, 0.002828255, 0.003250331, 0.003681842, 0.004124716, 0.004580118, 0.005048835, 0.005534115, 0.006033052, 0.006550222], False, 3, [1, 1, 1, 1, 1, 1, 1, 1, 1, 1, 1, 1, 1, 1, 1, 1, 1, 1, 1], False),
], False)
sketch2.addConstraint([
    Sketcher.Constraint("Block", 1),
    Sketcher.Constraint("Block", 2),
    Sketcher.Constraint("Block", 3),
    Sketcher.Constraint("Block", 5),
    Sketcher.Constraint("Block", 6),
    Sketcher.Constraint("Block", 7),
    Sketcher.Constraint("Block", 8),
    Sketcher.Constraint("Block", 10),
    Sketcher.Constraint("Block", 11),
    Sketcher.Constraint("Block", 12),
    Sketcher.Constraint("Block", 13),
    Sketcher.Constraint("Block", 14),
    Sketcher.Constraint("Block", 15),
    Sketcher.Constraint("Block", 16),
    Sketcher.Constraint("Coincident", 0, 2, 1, 2),
    Sketcher.Constraint("Coincident", 3, 1, 4, 1),
    Sketcher.Constraint("Coincident", 4, 2, 5, 2),
    Sketcher.Constraint("Coincident", 8, 1, 9, 1),
    Sketcher.Constraint("Coincident", 9, 2, 10, 2),
    Sketcher.Constraint("Coincident", 16, 1, 0, 1),
])
pocket1 = body.newObject("PartDesign::Pocket", "Pocket")
pocket1.Profile = sketch2
pocket1.Length = 2

doc.recompute()
